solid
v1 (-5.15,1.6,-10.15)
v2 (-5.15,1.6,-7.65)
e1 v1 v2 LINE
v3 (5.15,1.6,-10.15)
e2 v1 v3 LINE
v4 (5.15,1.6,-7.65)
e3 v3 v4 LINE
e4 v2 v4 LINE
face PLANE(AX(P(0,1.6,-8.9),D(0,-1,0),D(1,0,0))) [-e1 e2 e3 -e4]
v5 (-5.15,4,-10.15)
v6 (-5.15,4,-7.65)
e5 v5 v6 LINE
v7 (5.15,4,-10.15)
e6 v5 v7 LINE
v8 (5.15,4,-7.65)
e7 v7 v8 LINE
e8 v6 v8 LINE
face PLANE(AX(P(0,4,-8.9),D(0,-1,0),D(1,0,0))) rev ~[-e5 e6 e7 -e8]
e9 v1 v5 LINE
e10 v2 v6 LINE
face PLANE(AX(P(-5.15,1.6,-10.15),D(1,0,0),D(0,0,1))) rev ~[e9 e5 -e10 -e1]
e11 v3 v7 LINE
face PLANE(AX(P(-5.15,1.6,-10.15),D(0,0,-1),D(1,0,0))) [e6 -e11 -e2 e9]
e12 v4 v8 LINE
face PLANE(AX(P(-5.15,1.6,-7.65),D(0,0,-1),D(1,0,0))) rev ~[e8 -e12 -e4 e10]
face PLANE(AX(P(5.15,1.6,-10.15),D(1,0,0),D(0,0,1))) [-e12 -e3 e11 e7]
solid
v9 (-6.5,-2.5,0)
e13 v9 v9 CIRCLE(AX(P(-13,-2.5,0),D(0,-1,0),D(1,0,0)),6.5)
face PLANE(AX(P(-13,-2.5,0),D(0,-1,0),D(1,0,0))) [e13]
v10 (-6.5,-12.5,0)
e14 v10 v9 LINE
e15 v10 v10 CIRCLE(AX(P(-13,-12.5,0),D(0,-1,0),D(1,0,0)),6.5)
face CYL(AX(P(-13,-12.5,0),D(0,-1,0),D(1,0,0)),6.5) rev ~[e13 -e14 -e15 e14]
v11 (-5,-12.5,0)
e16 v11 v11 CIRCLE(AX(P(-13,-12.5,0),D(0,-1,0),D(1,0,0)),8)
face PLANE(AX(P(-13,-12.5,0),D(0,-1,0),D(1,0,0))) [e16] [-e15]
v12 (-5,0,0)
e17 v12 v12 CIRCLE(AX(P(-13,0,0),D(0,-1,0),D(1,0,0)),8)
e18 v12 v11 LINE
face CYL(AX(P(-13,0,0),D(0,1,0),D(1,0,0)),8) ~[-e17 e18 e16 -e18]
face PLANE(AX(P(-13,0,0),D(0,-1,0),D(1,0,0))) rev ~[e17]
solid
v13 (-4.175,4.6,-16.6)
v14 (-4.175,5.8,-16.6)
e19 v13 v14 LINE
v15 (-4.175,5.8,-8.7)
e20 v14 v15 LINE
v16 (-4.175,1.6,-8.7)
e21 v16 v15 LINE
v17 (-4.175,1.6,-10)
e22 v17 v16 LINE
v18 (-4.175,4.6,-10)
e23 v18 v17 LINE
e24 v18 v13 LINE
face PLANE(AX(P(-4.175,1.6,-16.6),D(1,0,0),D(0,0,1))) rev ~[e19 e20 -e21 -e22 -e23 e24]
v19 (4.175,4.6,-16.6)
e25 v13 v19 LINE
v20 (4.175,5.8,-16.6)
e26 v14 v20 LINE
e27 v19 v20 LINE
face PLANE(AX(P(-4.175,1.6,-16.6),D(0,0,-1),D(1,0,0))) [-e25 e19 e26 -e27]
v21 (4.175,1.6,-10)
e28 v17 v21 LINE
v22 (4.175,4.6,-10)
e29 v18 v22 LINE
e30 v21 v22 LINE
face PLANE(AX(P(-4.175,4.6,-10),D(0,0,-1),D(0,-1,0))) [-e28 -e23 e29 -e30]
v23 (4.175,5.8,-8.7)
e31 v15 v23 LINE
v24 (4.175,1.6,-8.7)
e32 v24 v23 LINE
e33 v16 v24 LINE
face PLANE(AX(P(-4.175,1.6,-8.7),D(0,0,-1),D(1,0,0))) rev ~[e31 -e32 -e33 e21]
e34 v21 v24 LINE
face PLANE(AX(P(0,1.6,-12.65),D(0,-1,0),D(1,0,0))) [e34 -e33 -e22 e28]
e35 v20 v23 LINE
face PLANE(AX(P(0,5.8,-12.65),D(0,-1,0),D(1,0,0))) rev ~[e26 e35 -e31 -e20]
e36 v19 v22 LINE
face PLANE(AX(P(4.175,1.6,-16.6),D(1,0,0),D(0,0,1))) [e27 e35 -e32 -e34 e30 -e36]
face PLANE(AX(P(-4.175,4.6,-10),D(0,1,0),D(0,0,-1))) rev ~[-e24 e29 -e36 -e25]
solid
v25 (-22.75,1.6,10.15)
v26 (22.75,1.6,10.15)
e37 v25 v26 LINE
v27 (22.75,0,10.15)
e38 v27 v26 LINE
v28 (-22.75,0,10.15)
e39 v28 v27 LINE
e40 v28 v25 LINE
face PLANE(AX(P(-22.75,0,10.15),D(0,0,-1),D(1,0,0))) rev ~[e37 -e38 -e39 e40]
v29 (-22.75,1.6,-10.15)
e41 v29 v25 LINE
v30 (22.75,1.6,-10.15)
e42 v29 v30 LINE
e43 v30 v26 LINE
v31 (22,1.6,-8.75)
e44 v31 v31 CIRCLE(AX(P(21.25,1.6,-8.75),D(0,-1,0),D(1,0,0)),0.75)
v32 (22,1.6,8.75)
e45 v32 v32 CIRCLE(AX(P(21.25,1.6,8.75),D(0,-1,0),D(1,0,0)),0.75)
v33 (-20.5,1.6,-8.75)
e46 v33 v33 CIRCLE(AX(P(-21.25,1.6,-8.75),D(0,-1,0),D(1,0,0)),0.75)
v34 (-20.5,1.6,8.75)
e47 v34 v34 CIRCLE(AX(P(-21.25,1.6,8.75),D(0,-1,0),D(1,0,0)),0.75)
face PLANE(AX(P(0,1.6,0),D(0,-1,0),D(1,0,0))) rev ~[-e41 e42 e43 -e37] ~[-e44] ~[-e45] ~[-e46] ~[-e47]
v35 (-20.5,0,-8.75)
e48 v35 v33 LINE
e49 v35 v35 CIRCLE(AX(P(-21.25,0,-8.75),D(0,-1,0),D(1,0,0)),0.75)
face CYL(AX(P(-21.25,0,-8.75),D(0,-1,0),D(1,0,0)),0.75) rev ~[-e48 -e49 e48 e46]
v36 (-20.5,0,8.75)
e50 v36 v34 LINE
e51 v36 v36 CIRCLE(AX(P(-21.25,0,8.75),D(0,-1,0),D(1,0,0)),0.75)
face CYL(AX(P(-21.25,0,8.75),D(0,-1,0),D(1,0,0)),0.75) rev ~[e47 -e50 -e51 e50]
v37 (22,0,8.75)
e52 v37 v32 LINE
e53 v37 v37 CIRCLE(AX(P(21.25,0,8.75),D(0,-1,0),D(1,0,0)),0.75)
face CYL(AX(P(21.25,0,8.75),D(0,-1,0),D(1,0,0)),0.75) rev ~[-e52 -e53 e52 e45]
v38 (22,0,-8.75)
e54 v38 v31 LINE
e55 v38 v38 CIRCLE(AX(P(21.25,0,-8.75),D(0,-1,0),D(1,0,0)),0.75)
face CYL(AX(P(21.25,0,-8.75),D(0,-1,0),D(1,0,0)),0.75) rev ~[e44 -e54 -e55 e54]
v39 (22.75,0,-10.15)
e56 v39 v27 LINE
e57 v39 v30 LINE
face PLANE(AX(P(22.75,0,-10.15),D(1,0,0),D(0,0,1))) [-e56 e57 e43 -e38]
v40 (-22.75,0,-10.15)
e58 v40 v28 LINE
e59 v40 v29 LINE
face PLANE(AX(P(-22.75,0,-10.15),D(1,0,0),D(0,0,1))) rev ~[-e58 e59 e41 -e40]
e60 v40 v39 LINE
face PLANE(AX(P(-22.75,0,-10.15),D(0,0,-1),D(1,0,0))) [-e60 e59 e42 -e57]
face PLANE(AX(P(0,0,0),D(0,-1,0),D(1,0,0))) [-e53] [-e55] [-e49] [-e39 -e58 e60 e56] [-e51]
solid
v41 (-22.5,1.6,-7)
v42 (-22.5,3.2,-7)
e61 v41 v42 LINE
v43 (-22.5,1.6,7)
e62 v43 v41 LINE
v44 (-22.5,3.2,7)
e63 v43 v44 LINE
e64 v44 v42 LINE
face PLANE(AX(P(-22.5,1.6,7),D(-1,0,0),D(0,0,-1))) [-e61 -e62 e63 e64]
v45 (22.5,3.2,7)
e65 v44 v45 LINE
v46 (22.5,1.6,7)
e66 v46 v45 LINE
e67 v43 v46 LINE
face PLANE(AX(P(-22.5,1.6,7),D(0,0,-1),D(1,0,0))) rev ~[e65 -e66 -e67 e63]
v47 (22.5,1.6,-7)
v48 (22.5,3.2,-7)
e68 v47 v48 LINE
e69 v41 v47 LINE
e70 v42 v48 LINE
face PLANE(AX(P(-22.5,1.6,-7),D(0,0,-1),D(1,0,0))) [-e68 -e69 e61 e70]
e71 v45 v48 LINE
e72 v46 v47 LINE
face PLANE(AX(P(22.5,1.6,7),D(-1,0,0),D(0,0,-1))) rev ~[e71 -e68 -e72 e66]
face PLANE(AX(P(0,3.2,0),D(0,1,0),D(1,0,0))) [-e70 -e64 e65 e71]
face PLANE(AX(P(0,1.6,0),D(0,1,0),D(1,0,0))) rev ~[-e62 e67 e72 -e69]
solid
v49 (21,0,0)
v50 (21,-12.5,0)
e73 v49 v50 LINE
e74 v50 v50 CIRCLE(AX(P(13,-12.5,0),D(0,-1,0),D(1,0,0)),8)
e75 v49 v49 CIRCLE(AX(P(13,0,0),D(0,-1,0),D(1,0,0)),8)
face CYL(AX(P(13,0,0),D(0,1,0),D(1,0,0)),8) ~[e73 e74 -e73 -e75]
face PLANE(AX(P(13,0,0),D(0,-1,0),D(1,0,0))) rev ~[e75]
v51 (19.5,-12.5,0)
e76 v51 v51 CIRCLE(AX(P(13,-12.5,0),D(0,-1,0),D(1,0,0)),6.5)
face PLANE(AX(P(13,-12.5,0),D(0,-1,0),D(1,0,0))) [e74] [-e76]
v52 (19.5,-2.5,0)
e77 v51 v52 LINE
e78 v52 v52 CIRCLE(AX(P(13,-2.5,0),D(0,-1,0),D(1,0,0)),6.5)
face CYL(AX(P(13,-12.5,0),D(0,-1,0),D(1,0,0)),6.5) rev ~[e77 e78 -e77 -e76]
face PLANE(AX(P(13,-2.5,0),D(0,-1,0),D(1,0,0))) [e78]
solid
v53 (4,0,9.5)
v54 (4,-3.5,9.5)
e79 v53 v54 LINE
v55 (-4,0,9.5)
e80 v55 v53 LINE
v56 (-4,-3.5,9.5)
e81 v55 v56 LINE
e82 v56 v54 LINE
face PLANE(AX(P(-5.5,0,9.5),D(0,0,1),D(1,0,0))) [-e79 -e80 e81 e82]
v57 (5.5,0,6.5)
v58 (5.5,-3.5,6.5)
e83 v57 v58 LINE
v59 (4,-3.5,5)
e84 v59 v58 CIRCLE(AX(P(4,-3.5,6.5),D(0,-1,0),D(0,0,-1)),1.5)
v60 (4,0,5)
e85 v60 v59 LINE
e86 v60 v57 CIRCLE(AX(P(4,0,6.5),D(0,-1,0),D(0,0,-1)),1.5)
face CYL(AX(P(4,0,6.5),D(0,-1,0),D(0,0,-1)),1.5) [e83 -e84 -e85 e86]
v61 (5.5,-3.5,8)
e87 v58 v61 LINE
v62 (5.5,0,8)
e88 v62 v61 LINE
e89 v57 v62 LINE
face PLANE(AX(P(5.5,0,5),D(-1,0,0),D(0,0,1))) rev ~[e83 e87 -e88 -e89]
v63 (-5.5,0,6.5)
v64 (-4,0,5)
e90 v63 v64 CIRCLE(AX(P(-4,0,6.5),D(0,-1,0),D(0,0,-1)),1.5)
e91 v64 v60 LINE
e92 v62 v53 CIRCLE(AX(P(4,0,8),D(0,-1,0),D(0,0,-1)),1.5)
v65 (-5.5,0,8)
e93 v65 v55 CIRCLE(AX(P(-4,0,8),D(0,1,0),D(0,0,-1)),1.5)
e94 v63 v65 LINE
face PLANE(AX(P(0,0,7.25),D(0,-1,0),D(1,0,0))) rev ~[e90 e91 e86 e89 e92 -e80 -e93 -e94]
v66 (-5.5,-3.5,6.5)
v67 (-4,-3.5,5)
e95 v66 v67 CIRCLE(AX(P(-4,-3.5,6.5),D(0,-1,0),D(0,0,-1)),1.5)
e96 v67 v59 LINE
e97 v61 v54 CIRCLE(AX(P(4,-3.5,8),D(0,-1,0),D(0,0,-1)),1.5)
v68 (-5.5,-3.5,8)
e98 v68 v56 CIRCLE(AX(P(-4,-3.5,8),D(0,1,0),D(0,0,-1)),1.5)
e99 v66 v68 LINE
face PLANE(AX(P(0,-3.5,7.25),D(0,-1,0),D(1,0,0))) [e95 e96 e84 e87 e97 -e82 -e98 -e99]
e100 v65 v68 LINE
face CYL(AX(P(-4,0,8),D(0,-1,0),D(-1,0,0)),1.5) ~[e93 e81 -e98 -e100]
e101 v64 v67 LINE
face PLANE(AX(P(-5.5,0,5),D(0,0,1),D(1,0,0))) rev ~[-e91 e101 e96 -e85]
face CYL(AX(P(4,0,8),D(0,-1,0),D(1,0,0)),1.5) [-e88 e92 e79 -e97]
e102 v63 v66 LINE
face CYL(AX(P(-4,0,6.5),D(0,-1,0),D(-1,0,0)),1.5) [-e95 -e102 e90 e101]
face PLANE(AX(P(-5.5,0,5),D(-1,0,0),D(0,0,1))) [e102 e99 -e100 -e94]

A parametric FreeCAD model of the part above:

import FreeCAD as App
import Part
import Sketcher
from FreeCAD import Vector
Q = App.Units.Quantity


def edges_at(feature, points):
    """Names of the edges that pass closest to the given points."""
    edges = feature.Shape.Edges
    near = lambda p: min(range(len(edges)), key=lambda i: edges[i].distToShape(Part.Vertex(*p))[0])
    return sorted({f"Edge{near(p) + 1}" for p in points})

doc = App.newDocument("Part")
body = doc.addObject("PartDesign::Body", "Body")

# Sketch on XZ plane
sketch1 = body.newObject("Sketcher::SketchObject", "Sketch")
sketch1.AttachmentSupport = (doc.getObject("XZ_Plane"), [""])
sketch1.MapMode = "FlatFace"
sketch1.addGeometry(Part.LineSegment(Vector(-23, 10, 0), Vector(-23, -10, 0)), False)
sketch1.addGeometry(Part.LineSegment(Vector(-23, -10, 0), Vector(23, -10, 0)), False)
sketch1.addGeometry(Part.LineSegment(Vector(23, -10, 0), Vector(23, 10, 0)), False)
sketch1.addGeometry(Part.LineSegment(Vector(23, 10, 0), Vector(-23, 10, 0)), False)
sketch1.addConstraint(Sketcher.Constraint("Coincident", 0, 2, 1, 1))
sketch1.addConstraint(Sketcher.Constraint("Coincident", 1, 2, 2, 1))
sketch1.addConstraint(Sketcher.Constraint("Coincident", 2, 2, 3, 1))
sketch1.addConstraint(Sketcher.Constraint("Coincident", 3, 2, 0, 1))
sketch1.addConstraint(Sketcher.Constraint("Vertical", 0))
sketch1.addConstraint(Sketcher.Constraint("Horizontal", 1))
sketch1.addConstraint(Sketcher.Constraint("Vertical", 2))
sketch1.addConstraint(Sketcher.Constraint("Horizontal", 3))
sketch1.addConstraint(Sketcher.Constraint("Symmetric", 0, 2, 2, 2, -1, 1))
sketch1.addConstraint(Sketcher.Constraint("DistanceX", 1, 1, 1, 2, Q("45.5 mm")))
sketch1.addConstraint(Sketcher.Constraint("DistanceY", 0, 2, 0, 1, Q("20.3 mm")))
pad1 = body.newObject("PartDesign::Pad", "Pad")
pad1.Profile = sketch1
pad1.Length = 1.6
pad1.Reversed = True

# Sketch on XZ plane
sketch2 = body.newObject("Sketcher::SketchObject", "Sketch001")
sketch2.AttachmentSupport = (doc.getObject("XZ_Plane"), [""])
sketch2.MapMode = "FlatFace"
sketch2.addGeometry(Part.Circle(Vector(-21.2, 8.8, 0), Vector(0, 0, 1), 0.8), False)
sketch2.addGeometry(Part.Circle(Vector(21.2, 8.8, 0), Vector(0, 0, 1), 0.8), False)
sketch2.addGeometry(Part.Circle(Vector(21.2, -8.8, 0), Vector(0, 0, 1), 0.8), False)
sketch2.addGeometry(Part.Circle(Vector(-21.2, -8.8, 0), Vector(0, 0, 1), 0.8), False)
sketch2.addConstraint(Sketcher.Constraint("Equal", 0, 1))
sketch2.addConstraint(Sketcher.Constraint("Equal", 1, 2))
sketch2.addConstraint(Sketcher.Constraint("Equal", 2, 3))
sketch2.addConstraint(Sketcher.Constraint("Symmetric", 0, 3, 2, 3, -1, 1))
sketch2.addConstraint(Sketcher.Constraint("Symmetric", 1, 3, 3, 3, -1, 1))
sketch2.addConstraint(Sketcher.Constraint("Symmetric", 0, 3, 1, 3, -2))
sketch2.addConstraint(Sketcher.Constraint("Diameter", 0, Q("1.5 mm")))
sketch2.addConstraint(Sketcher.Constraint("DistanceX", 0, 3, 1, 3, Q("42.5 mm")))
sketch2.addConstraint(Sketcher.Constraint("DistanceY", 2, 3, 1, 3, Q("17.5 mm")))
pocket1 = body.newObject("PartDesign::Pocket", "Pocket")
pocket1.Profile = sketch2
pocket1.Length = 5
body2 = doc.addObject("PartDesign::Body", "Body001")

# Sketch on XZ plane
sketch3 = body2.newObject("Sketcher::SketchObject", "Sketch002")
sketch3.AttachmentSupport = (doc.getObject("XZ_Plane001"), [""])
sketch3.MapMode = "FlatFace"
sketch3.addGeometry(Part.Circle(Vector(-13, 0, 0), Vector(0, 0, 1), 8), False)
sketch3.addConstraint(Sketcher.Constraint("PointOnObject", 0, 3, -1))
sketch3.addConstraint(Sketcher.Constraint("Diameter", 0, Q("16 mm")))
sketch3.addConstraint(Sketcher.Constraint("DistanceX", 0, 3, -1, 1, Q("13 mm")))
pad2 = body2.newObject("PartDesign::Pad", "Pad001")
pad2.Profile = sketch3
pad2.Length = 12.5

# Sketch on XZ plane
sketch4 = body2.newObject("Sketcher::SketchObject", "Sketch003")
sketch4.AttachmentSupport = (doc.getObject("XZ_Plane001"), [""])
sketch4.MapMode = "FlatFace"
sketch4.AttachmentOffset = App.Placement(Vector(0, 0, 12.5), App.Rotation())
sketch4.addGeometry(Part.Circle(Vector(-13, 0, 0), Vector(0, 0, 1), 6), False)
sketch4.addConstraint(Sketcher.Constraint("PointOnObject", 0, 3, -1))
sketch4.addConstraint(Sketcher.Constraint("Diameter", 0, Q("13 mm")))
sketch4.addConstraint(Sketcher.Constraint("DistanceX", 0, 3, -1, 1, Q("13 mm")))
pocket2 = body2.newObject("PartDesign::Pocket", "Pocket001")
pocket2.Profile = sketch4
pocket2.Length = 10
body3 = doc.addObject("PartDesign::Body", "Body002")

# Sketch on XZ plane
sketch5 = body3.newObject("Sketcher::SketchObject", "Sketch004")
sketch5.AttachmentSupport = (doc.getObject("XZ_Plane002"), [""])
sketch5.MapMode = "FlatFace"
sketch5.addGeometry(Part.Circle(Vector(13, 0, 0), Vector(0, 0, 1), 8), False)
sketch5.addConstraint(Sketcher.Constraint("PointOnObject", 0, 3, -1))
sketch5.addConstraint(Sketcher.Constraint("Diameter", 0, Q("16 mm")))
sketch5.addConstraint(Sketcher.Constraint("DistanceX", -1, 1, 0, 3, Q("13 mm")))
pad3 = body3.newObject("PartDesign::Pad", "Pad002")
pad3.Profile = sketch5
pad3.Length = 12.5

# Sketch on XZ plane
sketch6 = body3.newObject("Sketcher::SketchObject", "Sketch005")
sketch6.AttachmentSupport = (doc.getObject("XZ_Plane002"), [""])
sketch6.MapMode = "FlatFace"
sketch6.AttachmentOffset = App.Placement(Vector(0, 0, 12.5), App.Rotation())
sketch6.addGeometry(Part.Circle(Vector(13, 0, 0), Vector(0, 0, 1), 6), False)
sketch6.addConstraint(Sketcher.Constraint("PointOnObject", 0, 3, -1))
sketch6.addConstraint(Sketcher.Constraint("Diameter", 0, Q("13 mm")))
sketch6.addConstraint(Sketcher.Constraint("DistanceX", -1, 1, 0, 3, Q("13 mm")))
pocket3 = body3.newObject("PartDesign::Pocket", "Pocket002")
pocket3.Profile = sketch6
pocket3.Length = 10
body4 = doc.addObject("PartDesign::Body", "Body003")

# Sketch on XZ plane
sketch7 = body4.newObject("Sketcher::SketchObject", "Sketch006")
sketch7.AttachmentSupport = (doc.getObject("XZ_Plane003"), [""])
sketch7.MapMode = "FlatFace"
sketch7.addGeometry(Part.LineSegment(Vector(-5.5, 9.5, 0), Vector(-5.5, 5, 0)), False)
sketch7.addGeometry(Part.LineSegment(Vector(-5.5, 5, 0), Vector(5.5, 5, 0)), False)
sketch7.addGeometry(Part.LineSegment(Vector(5.5, 5, 0), Vector(5.5, 9.5, 0)), False)
sketch7.addGeometry(Part.LineSegment(Vector(5.5, 9.5, 0), Vector(-5.5, 9.5, 0)), False)
sketch7.addConstraint(Sketcher.Constraint("Coincident", 0, 2, 1, 1))
sketch7.addConstraint(Sketcher.Constraint("Coincident", 1, 2, 2, 1))
sketch7.addConstraint(Sketcher.Constraint("Coincident", 2, 2, 3, 1))
sketch7.addConstraint(Sketcher.Constraint("Coincident", 3, 2, 0, 1))
sketch7.addConstraint(Sketcher.Constraint("Vertical", 0))
sketch7.addConstraint(Sketcher.Constraint("Horizontal", 1))
sketch7.addConstraint(Sketcher.Constraint("Vertical", 2))
sketch7.addConstraint(Sketcher.Constraint("Horizontal", 3))
sketch7.addConstraint(Sketcher.Constraint("DistanceX", 1, 1, 1, 2, Q("11 mm")))
sketch7.addConstraint(Sketcher.Constraint("DistanceY", 0, 2, 0, 1, Q("4.5 mm")))
sketch7.addConstraint(Sketcher.Constraint("DistanceY", -1, 1, 0, 2, Q("5 mm")))
sketch7.addConstraint(Sketcher.Constraint("DistanceX", 0, 2, -1, 1, Q("5.5 mm")))
pad4 = body4.newObject("PartDesign::Pad", "Pad003")
pad4.Profile = sketch7
pad4.Length = 3.5
doc.recompute()

fillet = body4.newObject("PartDesign::Fillet", "Fillet")
fillet.Base = (pad4, edges_at(pad4, [
    (-5.5, -1.75, 9.5),
    (5.5, -1.75, 9.5),
    (5.5, -1.75, 5),
    (-5.5, -1.75, 5),
]))
fillet.Radius = 1.5
body5 = doc.addObject("PartDesign::Body", "Body004")

# Sketch on XZ plane
sketch8 = body5.newObject("Sketcher::SketchObject", "Sketch007")
sketch8.AttachmentSupport = (doc.getObject("XZ_Plane004"), [""])
sketch8.MapMode = "FlatFace"
sketch8.AttachmentOffset = App.Placement(Vector(0, 0, -1.6), App.Rotation())
sketch8.addGeometry(Part.LineSegment(Vector(-5.2, -7.7, 0), Vector(-5.2, -10.2, 0)), False)
sketch8.addGeometry(Part.LineSegment(Vector(-5.2, -10.2, 0), Vector(5.2, -10.2, 0)), False)
sketch8.addGeometry(Part.LineSegment(Vector(5.2, -10.2, 0), Vector(5.2, -7.7, 0)), False)
sketch8.addGeometry(Part.LineSegment(Vector(5.2, -7.7, 0), Vector(-5.2, -7.7, 0)), False)
sketch8.addConstraint(Sketcher.Constraint("Coincident", 0, 2, 1, 1))
sketch8.addConstraint(Sketcher.Constraint("Coincident", 1, 2, 2, 1))
sketch8.addConstraint(Sketcher.Constraint("Coincident", 2, 2, 3, 1))
sketch8.addConstraint(Sketcher.Constraint("Coincident", 3, 2, 0, 1))
sketch8.addConstraint(Sketcher.Constraint("Vertical", 0))
sketch8.addConstraint(Sketcher.Constraint("Horizontal", 1))
sketch8.addConstraint(Sketcher.Constraint("Vertical", 2))
sketch8.addConstraint(Sketcher.Constraint("Horizontal", 3))
sketch8.addConstraint(Sketcher.Constraint("DistanceX", 1, 1, 1, 2, Q("10.3 mm")))
sketch8.addConstraint(Sketcher.Constraint("DistanceY", 0, 2, 0, 1, Q("2.5 mm")))
sketch8.addConstraint(Sketcher.Constraint("DistanceX", 0, 2, -1, 1, Q("5.15 mm")))
sketch8.addConstraint(Sketcher.Constraint("DistanceY", 0, 2, -1, 1, Q("10.15 mm")))
pad5 = body5.newObject("PartDesign::Pad", "Pad004")
pad5.Profile = sketch8
pad5.Length = 2.4
pad5.Reversed = True
body6 = doc.addObject("PartDesign::Body", "Body005")

# Sketch on XZ plane
sketch9 = body6.newObject("Sketcher::SketchObject", "Sketch008")
sketch9.AttachmentSupport = (doc.getObject("XZ_Plane005"), [""])
sketch9.MapMode = "FlatFace"
sketch9.AttachmentOffset = App.Placement(Vector(0, 0, -1.6), App.Rotation())
sketch9.addGeometry(Part.LineSegment(Vector(-4, -9, 0), Vector(-4, -17, 0)), False)
sketch9.addGeometry(Part.LineSegment(Vector(-4, -17, 0), Vector(4, -17, 0)), False)
sketch9.addGeometry(Part.LineSegment(Vector(4, -17, 0), Vector(4, -9, 0)), False)
sketch9.addGeometry(Part.LineSegment(Vector(4, -9, 0), Vector(-4, -9, 0)), False)
sketch9.addConstraint(Sketcher.Constraint("Coincident", 0, 2, 1, 1))
sketch9.addConstraint(Sketcher.Constraint("Coincident", 1, 2, 2, 1))
sketch9.addConstraint(Sketcher.Constraint("Coincident", 2, 2, 3, 1))
sketch9.addConstraint(Sketcher.Constraint("Coincident", 3, 2, 0, 1))
sketch9.addConstraint(Sketcher.Constraint("Vertical", 0))
sketch9.addConstraint(Sketcher.Constraint("Horizontal", 1))
sketch9.addConstraint(Sketcher.Constraint("Vertical", 2))
sketch9.addConstraint(Sketcher.Constraint("Horizontal", 3))
sketch9.addConstraint(Sketcher.Constraint("DistanceY", 0, 2, 0, 1, Q("7.9 mm")))
sketch9.addConstraint(Sketcher.Constraint("DistanceX", 1, 1, 1, 2, Q("8.35 mm")))
sketch9.addConstraint(Sketcher.Constraint("DistanceY", 0, 2, -1, 1, Q("16.6 mm")))
sketch9.addConstraint(Sketcher.Constraint("DistanceX", 0, 2, -1, 1, Q("4.175 mm")))
pad6 = body6.newObject("PartDesign::Pad", "Pad005")
pad6.Profile = sketch9
pad6.Length = 4.2
pad6.Reversed = True

# Sketch on YZ plane
sketch10 = body6.newObject("Sketcher::SketchObject", "Sketch009")
sketch10.AttachmentSupport = (doc.getObject("YZ_Plane005"), [""])
sketch10.MapMode = "FlatFace"
sketch10.AttachmentOffset = App.Placement(Vector(0, 0, -4.175), App.Rotation())
sketch10.addGeometry(Part.LineSegment(Vector(1.6, -10, 0), Vector(4.6, -10, 0)), False)
sketch10.addGeometry(Part.LineSegment(Vector(4.6, -10, 0), Vector(4.6, -30, 0)), False)
sketch10.addGeometry(Part.LineSegment(Vector(4.6, -30, 0), Vector(1.6, -30, 0)), False)
sketch10.addGeometry(Part.LineSegment(Vector(1.6, -30, 0), Vector(1.6, -10, 0)), False)
sketch10.addConstraint(Sketcher.Constraint("Coincident", 0, 2, 1, 1))
sketch10.addConstraint(Sketcher.Constraint("Coincident", 1, 2, 2, 1))
sketch10.addConstraint(Sketcher.Constraint("Coincident", 2, 2, 3, 1))
sketch10.addConstraint(Sketcher.Constraint("Coincident", 3, 2, 0, 1))
sketch10.addConstraint(Sketcher.Constraint("Horizontal", 0))
sketch10.addConstraint(Sketcher.Constraint("Vertical", 1))
sketch10.addConstraint(Sketcher.Constraint("Horizontal", 2))
sketch10.addConstraint(Sketcher.Constraint("Vertical", 3))
sketch10.addConstraint(Sketcher.Constraint("DistanceX", 0, 1, 0, 2, Q("3 mm")))
sketch10.addConstraint(Sketcher.Constraint("DistanceY", 1, 2, 1, 1, Q("20 mm")))
sketch10.addConstraint(Sketcher.Constraint("DistanceY", 0, 2, -1, 1, Q("10 mm")))
sketch10.addConstraint(Sketcher.Constraint("DistanceX", -1, 1, 0, 2, Q("4.6 mm")))
pocket4 = body6.newObject("PartDesign::Pocket", "Pocket003")
pocket4.Profile = sketch10
pocket4.Type = "ThroughAll"
pocket4.Reversed = True
body7 = doc.addObject("PartDesign::Body", "Body006")

# Sketch on XZ plane
sketch11 = body7.newObject("Sketcher::SketchObject", "Sketch010")
sketch11.AttachmentSupport = (doc.getObject("XZ_Plane006"), [""])
sketch11.MapMode = "FlatFace"
sketch11.AttachmentOffset = App.Placement(Vector(0, 0, -1.6), App.Rotation())
sketch11.addGeometry(Part.LineSegment(Vector(-22, -7, 0), Vector(-22, 7, 0)), False)
sketch11.addGeometry(Part.LineSegment(Vector(-22, 7, 0), Vector(22, 7, 0)), False)
sketch11.addGeometry(Part.LineSegment(Vector(22, 7, 0), Vector(22, -7, 0)), False)
sketch11.addGeometry(Part.LineSegment(Vector(22, -7, 0), Vector(-22, -7, 0)), False)
sketch11.addConstraint(Sketcher.Constraint("Coincident", 0, 2, 1, 1))
sketch11.addConstraint(Sketcher.Constraint("Coincident", 1, 2, 2, 1))
sketch11.addConstraint(Sketcher.Constraint("Coincident", 2, 2, 3, 1))
sketch11.addConstraint(Sketcher.Constraint("Coincident", 3, 2, 0, 1))
sketch11.addConstraint(Sketcher.Constraint("Vertical", 0))
sketch11.addConstraint(Sketcher.Constraint("Horizontal", 1))
sketch11.addConstraint(Sketcher.Constraint("Vertical", 2))
sketch11.addConstraint(Sketcher.Constraint("Horizontal", 3))
sketch11.addConstraint(Sketcher.Constraint("Symmetric", 0, 2, 2, 2, -1, 1))
sketch11.addConstraint(Sketcher.Constraint("DistanceX", 1, 1, 1, 2, Q("45 mm")))
sketch11.addConstraint(Sketcher.Constraint("DistanceY", 0, 1, 0, 2, Q("14 mm")))
pad7 = body7.newObject("PartDesign::Pad", "Pad006")
pad7.Profile = sketch11
pad7.Length = 1.6
pad7.Reversed = True

doc.recompute()
